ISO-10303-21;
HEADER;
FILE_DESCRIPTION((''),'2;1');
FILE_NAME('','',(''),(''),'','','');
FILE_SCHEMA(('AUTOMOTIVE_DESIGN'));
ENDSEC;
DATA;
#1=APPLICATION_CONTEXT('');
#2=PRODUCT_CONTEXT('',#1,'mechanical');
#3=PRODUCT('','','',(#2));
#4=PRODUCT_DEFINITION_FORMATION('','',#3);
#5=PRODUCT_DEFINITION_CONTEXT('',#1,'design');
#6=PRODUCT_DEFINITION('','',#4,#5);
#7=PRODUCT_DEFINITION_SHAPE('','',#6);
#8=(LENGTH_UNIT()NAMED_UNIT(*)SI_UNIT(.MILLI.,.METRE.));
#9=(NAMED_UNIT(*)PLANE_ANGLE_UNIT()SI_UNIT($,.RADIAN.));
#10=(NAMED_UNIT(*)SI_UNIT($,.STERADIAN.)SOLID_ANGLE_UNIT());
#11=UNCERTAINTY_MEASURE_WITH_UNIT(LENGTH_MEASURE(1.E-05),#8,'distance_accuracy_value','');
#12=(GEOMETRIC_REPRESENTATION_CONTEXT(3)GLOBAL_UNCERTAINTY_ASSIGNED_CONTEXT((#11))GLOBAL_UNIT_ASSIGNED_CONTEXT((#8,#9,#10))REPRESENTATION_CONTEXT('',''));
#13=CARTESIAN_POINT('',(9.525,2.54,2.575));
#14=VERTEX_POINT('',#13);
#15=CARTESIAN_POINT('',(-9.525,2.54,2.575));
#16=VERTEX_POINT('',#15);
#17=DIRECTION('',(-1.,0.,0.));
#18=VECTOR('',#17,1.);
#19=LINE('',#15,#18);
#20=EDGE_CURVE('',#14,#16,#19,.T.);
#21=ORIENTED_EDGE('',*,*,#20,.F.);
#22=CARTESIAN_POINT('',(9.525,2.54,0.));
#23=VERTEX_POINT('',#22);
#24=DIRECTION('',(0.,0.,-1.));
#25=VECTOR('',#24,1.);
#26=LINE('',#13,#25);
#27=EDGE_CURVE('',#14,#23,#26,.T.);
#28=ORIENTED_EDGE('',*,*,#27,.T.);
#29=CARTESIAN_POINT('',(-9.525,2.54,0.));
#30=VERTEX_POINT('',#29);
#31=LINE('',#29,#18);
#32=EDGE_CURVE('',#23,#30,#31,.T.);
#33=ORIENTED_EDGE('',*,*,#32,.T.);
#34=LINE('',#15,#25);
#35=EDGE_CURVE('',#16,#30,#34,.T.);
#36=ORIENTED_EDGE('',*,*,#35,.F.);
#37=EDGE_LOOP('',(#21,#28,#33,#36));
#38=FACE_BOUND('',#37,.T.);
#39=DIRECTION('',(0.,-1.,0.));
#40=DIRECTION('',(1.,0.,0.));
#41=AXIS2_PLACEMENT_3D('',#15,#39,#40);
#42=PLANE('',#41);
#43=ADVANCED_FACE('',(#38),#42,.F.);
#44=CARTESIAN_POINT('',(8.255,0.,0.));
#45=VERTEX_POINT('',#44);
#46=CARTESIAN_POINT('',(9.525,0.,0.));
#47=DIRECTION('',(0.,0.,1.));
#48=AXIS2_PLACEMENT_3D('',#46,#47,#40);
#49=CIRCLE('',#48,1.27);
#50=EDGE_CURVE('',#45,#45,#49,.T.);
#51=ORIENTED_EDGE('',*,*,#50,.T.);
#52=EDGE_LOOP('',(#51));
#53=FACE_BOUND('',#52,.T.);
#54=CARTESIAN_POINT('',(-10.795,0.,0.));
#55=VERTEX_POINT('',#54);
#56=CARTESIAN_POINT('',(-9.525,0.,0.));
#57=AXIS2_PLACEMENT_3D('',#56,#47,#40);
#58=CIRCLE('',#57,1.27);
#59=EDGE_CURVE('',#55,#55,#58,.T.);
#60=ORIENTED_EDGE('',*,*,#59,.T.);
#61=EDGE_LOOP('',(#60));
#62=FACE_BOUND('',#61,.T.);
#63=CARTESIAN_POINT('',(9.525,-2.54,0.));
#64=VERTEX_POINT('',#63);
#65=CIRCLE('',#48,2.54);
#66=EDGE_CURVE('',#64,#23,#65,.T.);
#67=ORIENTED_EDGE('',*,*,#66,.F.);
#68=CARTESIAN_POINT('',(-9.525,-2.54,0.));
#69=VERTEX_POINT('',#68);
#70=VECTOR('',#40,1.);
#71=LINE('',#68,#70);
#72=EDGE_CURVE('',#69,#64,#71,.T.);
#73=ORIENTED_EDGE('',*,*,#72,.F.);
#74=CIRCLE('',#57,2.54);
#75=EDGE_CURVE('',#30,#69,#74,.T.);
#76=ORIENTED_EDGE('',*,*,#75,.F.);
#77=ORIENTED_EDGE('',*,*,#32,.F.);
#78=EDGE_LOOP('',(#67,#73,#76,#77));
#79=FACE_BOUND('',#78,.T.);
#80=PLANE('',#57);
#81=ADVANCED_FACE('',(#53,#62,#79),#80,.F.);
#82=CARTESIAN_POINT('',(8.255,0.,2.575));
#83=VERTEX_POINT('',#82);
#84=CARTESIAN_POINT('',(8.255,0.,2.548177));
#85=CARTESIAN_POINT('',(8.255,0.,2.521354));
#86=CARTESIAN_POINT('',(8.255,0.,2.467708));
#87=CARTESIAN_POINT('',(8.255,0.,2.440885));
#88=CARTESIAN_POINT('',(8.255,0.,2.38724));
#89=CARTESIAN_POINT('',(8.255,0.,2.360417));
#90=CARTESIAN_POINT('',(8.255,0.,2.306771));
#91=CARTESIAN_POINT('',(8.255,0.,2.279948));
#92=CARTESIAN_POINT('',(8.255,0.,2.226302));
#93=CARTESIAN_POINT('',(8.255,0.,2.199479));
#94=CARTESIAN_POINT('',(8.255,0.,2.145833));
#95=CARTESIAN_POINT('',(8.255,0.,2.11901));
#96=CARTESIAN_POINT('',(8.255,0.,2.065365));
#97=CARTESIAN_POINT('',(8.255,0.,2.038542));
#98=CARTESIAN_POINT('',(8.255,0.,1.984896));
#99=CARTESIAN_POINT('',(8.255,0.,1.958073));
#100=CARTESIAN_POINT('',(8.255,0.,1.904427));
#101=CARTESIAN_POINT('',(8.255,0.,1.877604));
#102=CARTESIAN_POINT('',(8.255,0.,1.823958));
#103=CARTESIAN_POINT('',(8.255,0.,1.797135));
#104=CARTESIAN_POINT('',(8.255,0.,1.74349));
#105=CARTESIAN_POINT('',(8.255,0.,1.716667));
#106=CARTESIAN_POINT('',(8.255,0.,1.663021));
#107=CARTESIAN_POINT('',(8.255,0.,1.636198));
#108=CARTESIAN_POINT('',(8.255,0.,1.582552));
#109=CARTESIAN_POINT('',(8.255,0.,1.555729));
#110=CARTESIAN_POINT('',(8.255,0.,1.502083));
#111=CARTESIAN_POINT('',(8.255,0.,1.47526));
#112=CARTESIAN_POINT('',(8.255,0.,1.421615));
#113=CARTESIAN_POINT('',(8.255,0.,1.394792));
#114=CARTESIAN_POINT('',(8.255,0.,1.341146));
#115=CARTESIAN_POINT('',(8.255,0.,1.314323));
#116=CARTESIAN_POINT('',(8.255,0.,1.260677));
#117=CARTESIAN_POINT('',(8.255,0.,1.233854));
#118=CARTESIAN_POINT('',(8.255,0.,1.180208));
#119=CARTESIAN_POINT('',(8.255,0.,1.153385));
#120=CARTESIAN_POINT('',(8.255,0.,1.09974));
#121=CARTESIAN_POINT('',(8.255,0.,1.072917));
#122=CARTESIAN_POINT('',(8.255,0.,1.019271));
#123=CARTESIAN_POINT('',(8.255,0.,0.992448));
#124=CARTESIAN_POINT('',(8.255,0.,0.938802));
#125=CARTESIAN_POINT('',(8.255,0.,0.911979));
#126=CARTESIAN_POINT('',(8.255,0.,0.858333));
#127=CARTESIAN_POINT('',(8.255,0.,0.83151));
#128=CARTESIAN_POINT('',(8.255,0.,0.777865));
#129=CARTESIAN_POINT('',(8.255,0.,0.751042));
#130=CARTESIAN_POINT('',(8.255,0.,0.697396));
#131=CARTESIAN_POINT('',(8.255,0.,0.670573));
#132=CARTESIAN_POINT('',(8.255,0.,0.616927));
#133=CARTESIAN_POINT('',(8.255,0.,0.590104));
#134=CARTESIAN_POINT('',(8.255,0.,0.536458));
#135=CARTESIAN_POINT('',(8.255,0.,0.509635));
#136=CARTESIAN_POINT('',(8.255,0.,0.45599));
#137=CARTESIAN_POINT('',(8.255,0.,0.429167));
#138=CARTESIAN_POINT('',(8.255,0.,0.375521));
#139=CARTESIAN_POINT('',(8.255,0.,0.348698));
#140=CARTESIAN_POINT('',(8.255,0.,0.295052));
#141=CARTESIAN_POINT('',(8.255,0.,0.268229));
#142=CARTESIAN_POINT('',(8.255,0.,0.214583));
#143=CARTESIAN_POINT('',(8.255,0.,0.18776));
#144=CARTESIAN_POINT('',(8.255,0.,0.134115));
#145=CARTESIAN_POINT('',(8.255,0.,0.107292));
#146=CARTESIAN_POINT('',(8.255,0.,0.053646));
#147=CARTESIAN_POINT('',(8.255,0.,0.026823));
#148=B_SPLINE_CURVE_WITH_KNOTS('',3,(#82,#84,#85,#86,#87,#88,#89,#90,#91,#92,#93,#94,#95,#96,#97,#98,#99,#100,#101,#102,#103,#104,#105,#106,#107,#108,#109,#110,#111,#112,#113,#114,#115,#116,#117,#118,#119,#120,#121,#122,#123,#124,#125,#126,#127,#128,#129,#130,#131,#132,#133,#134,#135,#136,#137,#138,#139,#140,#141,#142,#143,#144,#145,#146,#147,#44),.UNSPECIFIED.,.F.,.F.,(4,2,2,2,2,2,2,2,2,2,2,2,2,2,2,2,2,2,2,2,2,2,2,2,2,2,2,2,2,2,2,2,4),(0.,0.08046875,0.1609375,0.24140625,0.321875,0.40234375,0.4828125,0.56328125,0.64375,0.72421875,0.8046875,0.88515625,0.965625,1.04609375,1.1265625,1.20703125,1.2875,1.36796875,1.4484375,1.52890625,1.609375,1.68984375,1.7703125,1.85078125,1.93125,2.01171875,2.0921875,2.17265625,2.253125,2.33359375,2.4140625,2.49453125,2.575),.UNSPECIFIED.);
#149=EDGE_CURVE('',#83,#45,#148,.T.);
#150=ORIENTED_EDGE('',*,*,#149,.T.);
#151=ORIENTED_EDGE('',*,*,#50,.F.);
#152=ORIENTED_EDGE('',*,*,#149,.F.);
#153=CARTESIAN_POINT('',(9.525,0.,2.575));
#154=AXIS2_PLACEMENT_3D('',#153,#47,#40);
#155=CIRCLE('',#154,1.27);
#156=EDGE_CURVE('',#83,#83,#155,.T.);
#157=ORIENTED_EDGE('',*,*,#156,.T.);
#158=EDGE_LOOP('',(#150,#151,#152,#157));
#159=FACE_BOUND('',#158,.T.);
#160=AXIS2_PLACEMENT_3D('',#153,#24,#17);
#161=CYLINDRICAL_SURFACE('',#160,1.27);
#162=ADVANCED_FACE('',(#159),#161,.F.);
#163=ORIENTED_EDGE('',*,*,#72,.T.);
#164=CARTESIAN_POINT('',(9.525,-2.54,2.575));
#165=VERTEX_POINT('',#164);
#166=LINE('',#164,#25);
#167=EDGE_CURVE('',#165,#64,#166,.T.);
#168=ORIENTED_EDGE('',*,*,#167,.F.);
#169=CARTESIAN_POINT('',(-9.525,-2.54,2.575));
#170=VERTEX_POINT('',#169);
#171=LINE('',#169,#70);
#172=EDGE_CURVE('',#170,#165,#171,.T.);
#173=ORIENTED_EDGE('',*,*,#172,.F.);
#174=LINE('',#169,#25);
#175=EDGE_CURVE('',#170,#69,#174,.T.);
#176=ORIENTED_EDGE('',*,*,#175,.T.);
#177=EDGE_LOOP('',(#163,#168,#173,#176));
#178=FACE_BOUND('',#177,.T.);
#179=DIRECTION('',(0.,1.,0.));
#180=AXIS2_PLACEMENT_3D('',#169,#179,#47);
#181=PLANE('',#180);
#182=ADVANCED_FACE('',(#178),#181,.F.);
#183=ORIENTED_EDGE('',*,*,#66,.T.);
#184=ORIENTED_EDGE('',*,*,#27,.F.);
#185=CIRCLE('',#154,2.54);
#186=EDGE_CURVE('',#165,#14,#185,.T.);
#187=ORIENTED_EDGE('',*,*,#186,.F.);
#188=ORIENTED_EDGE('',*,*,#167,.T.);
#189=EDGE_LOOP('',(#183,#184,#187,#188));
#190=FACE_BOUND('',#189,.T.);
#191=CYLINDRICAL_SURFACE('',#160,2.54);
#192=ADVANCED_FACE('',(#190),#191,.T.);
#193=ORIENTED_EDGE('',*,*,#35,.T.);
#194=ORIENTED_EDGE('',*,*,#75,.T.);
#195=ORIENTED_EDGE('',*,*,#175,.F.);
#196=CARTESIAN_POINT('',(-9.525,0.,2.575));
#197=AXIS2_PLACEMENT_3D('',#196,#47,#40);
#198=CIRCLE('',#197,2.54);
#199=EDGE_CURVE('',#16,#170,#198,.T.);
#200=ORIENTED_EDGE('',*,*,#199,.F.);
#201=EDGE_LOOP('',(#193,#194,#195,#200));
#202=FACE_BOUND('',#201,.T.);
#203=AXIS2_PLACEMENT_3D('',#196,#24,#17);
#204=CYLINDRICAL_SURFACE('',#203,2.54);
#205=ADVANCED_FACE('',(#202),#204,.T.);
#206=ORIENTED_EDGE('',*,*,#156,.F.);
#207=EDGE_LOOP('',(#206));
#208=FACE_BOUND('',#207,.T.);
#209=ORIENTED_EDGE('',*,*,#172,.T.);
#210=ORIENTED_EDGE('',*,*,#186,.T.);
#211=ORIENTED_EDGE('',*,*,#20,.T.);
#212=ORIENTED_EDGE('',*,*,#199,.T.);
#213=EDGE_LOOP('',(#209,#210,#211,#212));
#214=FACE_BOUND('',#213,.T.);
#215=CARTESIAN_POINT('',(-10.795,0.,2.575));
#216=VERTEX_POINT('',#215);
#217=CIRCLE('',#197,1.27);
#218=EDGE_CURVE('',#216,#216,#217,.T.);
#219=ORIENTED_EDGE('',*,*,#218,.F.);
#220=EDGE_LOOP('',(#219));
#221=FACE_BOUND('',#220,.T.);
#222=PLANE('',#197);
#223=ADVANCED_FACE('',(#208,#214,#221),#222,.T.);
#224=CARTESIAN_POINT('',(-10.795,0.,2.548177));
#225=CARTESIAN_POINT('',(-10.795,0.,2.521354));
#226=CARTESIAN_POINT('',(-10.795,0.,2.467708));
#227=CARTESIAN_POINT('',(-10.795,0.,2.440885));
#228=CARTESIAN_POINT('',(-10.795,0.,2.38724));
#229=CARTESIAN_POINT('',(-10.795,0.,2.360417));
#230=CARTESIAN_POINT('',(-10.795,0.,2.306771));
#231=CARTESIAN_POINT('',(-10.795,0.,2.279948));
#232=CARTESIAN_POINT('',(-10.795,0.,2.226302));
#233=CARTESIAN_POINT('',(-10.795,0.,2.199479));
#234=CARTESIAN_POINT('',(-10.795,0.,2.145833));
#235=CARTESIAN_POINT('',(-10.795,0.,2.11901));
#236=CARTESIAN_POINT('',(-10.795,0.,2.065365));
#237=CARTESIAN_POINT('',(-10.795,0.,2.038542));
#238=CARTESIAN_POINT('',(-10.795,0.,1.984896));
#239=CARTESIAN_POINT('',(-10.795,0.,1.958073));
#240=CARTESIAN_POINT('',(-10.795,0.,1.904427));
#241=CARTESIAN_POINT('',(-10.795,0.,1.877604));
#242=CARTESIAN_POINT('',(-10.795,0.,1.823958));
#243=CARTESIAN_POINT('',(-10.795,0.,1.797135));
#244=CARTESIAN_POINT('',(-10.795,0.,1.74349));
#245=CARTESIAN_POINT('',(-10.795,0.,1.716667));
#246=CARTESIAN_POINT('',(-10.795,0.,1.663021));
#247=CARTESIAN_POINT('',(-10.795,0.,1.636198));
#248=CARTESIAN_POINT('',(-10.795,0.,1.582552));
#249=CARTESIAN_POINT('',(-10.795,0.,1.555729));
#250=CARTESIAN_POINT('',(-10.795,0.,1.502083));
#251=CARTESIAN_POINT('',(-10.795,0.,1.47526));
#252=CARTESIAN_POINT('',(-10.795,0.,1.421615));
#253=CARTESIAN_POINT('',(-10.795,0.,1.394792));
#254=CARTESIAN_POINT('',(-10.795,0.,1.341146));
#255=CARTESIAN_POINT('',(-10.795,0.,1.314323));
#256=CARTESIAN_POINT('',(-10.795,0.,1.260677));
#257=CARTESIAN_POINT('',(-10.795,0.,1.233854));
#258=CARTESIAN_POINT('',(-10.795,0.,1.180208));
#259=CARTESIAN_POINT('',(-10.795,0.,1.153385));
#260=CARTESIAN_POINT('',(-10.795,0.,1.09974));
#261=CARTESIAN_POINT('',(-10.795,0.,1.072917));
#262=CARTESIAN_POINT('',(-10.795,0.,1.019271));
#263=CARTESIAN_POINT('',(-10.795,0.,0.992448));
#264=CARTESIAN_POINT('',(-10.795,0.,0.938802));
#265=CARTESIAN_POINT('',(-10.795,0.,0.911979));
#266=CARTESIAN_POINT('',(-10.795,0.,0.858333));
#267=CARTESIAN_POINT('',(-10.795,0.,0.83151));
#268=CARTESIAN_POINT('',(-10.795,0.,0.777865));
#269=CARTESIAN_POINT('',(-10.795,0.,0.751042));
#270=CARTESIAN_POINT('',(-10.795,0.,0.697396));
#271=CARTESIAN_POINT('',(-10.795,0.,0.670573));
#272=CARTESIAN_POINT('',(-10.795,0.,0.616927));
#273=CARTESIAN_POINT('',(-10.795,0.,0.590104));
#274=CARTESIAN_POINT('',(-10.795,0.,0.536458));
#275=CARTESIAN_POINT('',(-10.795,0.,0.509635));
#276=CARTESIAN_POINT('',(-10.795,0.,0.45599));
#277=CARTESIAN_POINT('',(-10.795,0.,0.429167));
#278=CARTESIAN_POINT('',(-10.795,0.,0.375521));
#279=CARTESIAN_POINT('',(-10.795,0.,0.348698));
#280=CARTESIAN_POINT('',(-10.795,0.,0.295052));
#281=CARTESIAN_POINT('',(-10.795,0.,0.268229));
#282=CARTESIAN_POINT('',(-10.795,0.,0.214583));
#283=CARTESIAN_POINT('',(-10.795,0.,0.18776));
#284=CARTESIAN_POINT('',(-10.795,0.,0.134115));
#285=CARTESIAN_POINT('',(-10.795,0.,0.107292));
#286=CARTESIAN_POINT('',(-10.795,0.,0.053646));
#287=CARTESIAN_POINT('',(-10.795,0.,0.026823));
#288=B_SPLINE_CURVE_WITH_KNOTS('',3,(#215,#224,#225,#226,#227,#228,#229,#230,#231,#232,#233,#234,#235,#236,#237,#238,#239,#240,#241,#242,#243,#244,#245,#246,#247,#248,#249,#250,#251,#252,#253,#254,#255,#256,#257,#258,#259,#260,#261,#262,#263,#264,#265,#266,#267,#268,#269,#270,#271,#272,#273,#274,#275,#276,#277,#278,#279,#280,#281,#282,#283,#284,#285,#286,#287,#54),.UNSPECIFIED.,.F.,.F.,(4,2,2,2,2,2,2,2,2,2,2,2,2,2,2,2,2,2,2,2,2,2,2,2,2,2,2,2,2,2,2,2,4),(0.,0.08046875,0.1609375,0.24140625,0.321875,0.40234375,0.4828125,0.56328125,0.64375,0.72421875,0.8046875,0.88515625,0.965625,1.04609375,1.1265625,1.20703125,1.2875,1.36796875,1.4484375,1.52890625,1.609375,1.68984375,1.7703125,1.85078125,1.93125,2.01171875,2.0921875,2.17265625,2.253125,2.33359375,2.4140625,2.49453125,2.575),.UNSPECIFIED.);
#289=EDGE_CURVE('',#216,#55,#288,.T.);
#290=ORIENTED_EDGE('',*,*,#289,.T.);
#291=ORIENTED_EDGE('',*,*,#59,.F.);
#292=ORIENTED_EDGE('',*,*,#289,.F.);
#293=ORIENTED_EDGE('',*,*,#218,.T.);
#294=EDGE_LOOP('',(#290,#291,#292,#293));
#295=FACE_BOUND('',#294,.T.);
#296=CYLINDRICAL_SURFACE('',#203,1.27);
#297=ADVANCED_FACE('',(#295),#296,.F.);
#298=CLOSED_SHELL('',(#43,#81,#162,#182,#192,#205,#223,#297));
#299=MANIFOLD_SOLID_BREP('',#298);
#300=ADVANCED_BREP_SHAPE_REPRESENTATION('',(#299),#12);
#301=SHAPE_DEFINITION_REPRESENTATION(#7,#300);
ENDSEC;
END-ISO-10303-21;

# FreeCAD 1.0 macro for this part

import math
import FreeCAD as App
import Part
import Sketcher

V = App.Vector
Q = App.Units.Quantity

doc = App.newDocument("Part")
body = doc.addObject("PartDesign::Body", "Body")

# Sketch on XY plane
sketch1 = body.newObject("Sketcher::SketchObject", "Sketch")
sketch1.AttachmentSupport = (doc.getObject("XY_Plane"), [""])
sketch1.MapMode = "FlatFace"
sketch1.addGeometry([
    Part.LineSegment(V(9.5, 2.5, 0), V(-9.5, 2.5, 0)),  # 0
    Part.ArcOfCircle(Part.Circle(V(-9.5, 0, 0), V(0, 0, 1), 2.5), math.radians(90), math.radians(270)),  # 1
    Part.LineSegment(V(-9.5, -2.5, 0), V(9.5, -2.5, 0)),  # 2
    Part.ArcOfCircle(Part.Circle(V(9.5, 0, 0), V(0, 0, 1), 2.5), math.radians(-90), math.radians(90)),  # 3
    Part.Circle(V(9.5, 0, 0), V(0, 0, 1), 1.3),  # 4
    Part.Circle(V(-9.5, 0, 0), V(0, 0, 1), 1.3),  # 5
], False)
sketch1.addConstraint([
    Sketcher.Constraint("Tangent", 0, 2, 1, 1),
    Sketcher.Constraint("Tangent", 1, 2, 2, 1),
    Sketcher.Constraint("Tangent", 2, 2, 3, 1),
    Sketcher.Constraint("Tangent", 3, 2, 0, 1),
    Sketcher.Constraint("Horizontal", 0),
    Sketcher.Constraint("Horizontal", 2),
    Sketcher.Constraint("Coincident", 4, 3, 3, 3),
    Sketcher.Constraint("Coincident", 5, 3, 1, 3),
    Sketcher.Constraint("Equal", 4, 5),
    Sketcher.Constraint("Symmetric", 1, 3, 3, 3, -1, 1),
    Sketcher.Constraint("Diameter", 4, Q("0.1 in")),
    Sketcher.Constraint("Radius", 1, Q("0.1 in")),
    Sketcher.Constraint("DistanceX", 0, 2, 0, 1, Q("0.75 in")),
])
pad1 = body.newObject("PartDesign::Pad", "Pad")
pad1.Profile = sketch1
pad1.Length = 2.575

doc.recompute()
